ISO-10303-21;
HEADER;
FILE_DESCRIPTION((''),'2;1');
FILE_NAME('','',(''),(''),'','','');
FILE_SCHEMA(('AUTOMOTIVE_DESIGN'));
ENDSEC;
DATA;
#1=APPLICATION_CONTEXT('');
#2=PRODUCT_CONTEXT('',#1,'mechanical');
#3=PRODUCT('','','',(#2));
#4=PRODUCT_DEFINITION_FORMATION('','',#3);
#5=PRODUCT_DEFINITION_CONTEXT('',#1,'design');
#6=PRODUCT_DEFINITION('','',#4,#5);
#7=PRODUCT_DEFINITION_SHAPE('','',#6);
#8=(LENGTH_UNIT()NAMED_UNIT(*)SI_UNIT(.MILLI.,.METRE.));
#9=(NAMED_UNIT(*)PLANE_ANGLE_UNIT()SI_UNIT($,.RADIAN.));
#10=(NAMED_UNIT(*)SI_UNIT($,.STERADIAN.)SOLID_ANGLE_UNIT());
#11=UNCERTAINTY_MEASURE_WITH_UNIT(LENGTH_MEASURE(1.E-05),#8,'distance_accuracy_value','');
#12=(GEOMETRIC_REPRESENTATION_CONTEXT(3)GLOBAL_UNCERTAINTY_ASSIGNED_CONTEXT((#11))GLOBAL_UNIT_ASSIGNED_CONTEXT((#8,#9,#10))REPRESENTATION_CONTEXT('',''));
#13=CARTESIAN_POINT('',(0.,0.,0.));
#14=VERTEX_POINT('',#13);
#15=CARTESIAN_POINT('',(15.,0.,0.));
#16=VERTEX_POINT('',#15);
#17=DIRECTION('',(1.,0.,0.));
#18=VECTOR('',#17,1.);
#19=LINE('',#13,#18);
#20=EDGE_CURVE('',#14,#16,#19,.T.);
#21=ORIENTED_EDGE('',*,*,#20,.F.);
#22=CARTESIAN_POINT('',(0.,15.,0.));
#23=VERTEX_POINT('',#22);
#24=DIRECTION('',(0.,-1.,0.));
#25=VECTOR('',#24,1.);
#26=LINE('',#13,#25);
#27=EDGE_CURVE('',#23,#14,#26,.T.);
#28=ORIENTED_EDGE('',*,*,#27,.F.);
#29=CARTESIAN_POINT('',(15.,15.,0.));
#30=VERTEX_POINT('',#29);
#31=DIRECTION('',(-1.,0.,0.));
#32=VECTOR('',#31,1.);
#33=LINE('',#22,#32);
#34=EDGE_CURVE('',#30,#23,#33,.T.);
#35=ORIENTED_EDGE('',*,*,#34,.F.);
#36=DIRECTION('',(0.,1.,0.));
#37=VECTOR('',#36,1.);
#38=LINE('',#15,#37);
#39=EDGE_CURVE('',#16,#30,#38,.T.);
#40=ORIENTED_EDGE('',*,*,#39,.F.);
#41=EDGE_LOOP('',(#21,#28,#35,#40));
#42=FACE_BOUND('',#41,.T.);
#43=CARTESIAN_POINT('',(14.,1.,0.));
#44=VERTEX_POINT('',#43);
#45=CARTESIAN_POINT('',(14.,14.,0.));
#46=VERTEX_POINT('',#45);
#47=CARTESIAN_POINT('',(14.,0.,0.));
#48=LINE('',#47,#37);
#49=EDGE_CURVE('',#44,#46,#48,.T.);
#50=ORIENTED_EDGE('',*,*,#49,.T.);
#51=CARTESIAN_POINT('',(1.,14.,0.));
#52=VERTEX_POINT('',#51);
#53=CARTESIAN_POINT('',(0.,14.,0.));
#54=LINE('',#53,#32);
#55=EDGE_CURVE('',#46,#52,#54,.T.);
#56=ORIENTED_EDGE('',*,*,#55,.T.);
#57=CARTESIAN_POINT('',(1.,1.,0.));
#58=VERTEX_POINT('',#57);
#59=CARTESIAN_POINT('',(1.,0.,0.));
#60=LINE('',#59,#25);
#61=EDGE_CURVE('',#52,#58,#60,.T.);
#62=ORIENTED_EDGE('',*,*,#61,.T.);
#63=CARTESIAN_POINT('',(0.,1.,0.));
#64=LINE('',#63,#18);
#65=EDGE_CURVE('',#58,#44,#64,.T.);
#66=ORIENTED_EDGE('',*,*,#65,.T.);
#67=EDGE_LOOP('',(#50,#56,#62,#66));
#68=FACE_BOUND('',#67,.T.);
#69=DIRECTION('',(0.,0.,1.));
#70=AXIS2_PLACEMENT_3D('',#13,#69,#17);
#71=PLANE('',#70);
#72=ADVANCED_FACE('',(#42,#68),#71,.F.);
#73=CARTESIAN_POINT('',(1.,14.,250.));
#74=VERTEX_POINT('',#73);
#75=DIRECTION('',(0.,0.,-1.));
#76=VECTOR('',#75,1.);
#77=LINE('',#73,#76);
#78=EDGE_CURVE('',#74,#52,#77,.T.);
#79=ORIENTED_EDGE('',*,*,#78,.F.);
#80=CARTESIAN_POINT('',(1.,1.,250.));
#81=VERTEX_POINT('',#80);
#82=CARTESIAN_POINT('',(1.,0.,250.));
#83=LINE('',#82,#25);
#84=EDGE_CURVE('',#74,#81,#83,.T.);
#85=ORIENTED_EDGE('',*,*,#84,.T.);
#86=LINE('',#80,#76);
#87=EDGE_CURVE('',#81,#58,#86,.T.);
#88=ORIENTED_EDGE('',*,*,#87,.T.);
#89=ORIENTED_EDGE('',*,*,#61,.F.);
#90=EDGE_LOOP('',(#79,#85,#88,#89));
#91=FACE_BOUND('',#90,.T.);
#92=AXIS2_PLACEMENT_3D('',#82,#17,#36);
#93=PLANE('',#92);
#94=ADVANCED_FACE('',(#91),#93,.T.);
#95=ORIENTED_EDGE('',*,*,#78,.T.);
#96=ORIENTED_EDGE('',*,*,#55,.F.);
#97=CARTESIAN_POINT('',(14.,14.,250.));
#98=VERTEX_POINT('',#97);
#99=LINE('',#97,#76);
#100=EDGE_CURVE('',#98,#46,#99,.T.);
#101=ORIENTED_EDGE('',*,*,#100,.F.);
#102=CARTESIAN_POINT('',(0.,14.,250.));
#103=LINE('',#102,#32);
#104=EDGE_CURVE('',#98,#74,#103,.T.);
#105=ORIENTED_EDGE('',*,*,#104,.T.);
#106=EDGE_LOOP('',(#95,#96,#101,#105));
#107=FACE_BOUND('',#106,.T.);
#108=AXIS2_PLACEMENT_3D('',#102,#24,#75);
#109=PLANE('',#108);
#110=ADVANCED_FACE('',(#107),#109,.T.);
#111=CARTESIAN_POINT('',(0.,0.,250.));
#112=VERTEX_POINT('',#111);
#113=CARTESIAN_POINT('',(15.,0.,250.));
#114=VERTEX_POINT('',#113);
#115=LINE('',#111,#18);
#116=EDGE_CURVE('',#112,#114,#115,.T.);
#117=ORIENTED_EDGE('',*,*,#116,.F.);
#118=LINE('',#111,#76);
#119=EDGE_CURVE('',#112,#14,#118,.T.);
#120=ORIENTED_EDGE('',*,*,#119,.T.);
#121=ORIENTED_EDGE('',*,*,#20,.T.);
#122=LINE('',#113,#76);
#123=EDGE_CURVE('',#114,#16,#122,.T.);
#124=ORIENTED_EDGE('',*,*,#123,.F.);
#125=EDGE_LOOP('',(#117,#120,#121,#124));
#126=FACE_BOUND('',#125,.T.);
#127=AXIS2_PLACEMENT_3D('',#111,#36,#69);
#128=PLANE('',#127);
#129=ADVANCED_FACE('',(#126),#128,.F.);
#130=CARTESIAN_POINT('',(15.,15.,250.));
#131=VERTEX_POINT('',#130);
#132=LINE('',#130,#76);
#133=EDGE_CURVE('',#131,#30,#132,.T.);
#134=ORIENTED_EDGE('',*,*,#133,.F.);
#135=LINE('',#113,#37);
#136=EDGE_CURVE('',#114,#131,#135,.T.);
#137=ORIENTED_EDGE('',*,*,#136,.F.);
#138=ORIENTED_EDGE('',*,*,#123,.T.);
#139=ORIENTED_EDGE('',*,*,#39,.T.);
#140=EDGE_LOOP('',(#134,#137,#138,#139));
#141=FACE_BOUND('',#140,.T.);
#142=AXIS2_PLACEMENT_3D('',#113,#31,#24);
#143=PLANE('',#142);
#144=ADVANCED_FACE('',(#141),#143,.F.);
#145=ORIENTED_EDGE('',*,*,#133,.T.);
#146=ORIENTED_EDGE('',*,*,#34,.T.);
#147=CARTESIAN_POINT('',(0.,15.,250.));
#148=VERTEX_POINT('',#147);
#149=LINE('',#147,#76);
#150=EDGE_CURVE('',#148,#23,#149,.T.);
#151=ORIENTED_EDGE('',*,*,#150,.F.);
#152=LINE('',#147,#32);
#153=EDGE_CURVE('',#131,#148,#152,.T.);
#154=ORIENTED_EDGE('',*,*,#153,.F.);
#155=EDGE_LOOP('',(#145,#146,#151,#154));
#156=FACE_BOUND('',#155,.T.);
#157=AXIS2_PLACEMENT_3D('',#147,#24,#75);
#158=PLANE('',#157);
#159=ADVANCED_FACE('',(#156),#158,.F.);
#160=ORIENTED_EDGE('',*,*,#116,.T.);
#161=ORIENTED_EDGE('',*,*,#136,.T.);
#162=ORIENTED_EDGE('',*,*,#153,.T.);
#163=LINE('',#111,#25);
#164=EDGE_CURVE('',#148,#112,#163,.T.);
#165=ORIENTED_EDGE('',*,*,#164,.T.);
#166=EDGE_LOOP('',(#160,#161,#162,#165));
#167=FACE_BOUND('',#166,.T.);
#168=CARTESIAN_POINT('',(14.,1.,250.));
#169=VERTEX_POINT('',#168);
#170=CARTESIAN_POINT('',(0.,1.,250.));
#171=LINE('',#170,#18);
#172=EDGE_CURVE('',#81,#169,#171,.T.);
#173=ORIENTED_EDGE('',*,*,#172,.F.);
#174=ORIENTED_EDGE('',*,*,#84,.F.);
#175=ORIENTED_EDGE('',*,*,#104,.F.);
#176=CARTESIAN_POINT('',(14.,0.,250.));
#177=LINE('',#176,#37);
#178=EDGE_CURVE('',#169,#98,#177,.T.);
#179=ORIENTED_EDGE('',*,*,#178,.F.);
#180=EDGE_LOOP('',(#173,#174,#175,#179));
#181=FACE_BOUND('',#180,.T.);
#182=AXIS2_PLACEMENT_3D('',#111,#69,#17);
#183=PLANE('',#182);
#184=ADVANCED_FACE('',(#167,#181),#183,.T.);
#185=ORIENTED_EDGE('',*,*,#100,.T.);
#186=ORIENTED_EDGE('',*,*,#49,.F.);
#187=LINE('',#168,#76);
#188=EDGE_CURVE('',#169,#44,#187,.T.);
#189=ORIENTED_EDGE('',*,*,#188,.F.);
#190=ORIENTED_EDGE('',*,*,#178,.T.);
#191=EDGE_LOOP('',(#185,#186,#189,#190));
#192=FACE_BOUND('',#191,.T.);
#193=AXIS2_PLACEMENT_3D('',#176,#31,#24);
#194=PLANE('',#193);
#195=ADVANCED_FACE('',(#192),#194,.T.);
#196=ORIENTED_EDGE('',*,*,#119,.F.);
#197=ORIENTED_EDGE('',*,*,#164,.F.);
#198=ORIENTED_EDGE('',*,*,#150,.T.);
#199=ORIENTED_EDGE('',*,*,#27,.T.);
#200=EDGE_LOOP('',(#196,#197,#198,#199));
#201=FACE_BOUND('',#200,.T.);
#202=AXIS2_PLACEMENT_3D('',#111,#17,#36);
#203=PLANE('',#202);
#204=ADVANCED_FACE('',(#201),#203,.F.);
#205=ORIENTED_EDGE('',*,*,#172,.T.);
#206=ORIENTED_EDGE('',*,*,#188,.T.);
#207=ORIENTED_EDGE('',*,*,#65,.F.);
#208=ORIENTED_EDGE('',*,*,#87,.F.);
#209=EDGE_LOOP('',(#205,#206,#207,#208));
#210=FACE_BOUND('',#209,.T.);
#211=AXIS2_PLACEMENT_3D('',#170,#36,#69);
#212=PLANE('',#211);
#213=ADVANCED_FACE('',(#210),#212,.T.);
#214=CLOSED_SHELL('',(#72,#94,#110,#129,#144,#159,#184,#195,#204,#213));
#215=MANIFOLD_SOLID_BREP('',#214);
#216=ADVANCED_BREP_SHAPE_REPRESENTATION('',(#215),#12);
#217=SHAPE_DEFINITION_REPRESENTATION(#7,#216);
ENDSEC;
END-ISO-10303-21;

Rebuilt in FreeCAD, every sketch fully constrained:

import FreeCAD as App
import Part
import Sketcher

V = App.Vector
Q = App.Units.Quantity


def add_polygon(sketch, points):
    """Adds a closed chain of lines whose ends are joined by coincident constraints."""
    first, n = sketch.GeometryCount, len(points)
    for a, b in zip(points, points[1:] + points[:1]):
        sketch.addGeometry(Part.LineSegment(App.Vector(*a, 0), App.Vector(*b, 0)), False)
    for i in range(n):
        sketch.addConstraint(Sketcher.Constraint("Coincident", first + i, 2, first + (i + 1) % n, 1))

doc = App.newDocument("Part")
body = doc.addObject("PartDesign::Body", "Body")

sketch1 = body.newObject("Sketcher::SketchObject", "Sketch")
sketch1.AttachmentSupport = (doc.getObject("XY_Plane"), [""])
sketch1.MapMode = "FlatFace"
add_polygon(sketch1, [(0, 15), (0, 0), (15, 0), (15, 15)])
add_polygon(sketch1, [(14, 1), (1, 1), (1, 14), (14, 14)])
sketch1.addConstraint([
    Sketcher.Constraint("Vertical", 0),
    Sketcher.Constraint("Horizontal", 1),
    Sketcher.Constraint("Vertical", 2),
    Sketcher.Constraint("Horizontal", 3),
    Sketcher.Constraint("Horizontal", 4),
    Sketcher.Constraint("Vertical", 5),
    Sketcher.Constraint("Horizontal", 6),
    Sketcher.Constraint("Vertical", 7),
    Sketcher.Constraint("Coincident", 0, 2, -1, 1),
    Sketcher.Constraint("Equal", 3, 0),
    Sketcher.Constraint("Equal", 6, 5),
    Sketcher.Constraint("DistanceX", 1, 1, 1, 2, Q("15 mm")),
    Sketcher.Constraint("DistanceX", 4, 2, 4, 1, Q("13 mm")),
    Sketcher.Constraint("DistanceX", -1, 1, 4, 2, Q("1 mm")),
    Sketcher.Constraint("DistanceY", -1, 1, 4, 2, Q("1 mm")),
])
pad1 = body.newObject("PartDesign::Pad", "Pad")
pad1.Profile = sketch1
pad1.Length = 250

doc.recompute()
